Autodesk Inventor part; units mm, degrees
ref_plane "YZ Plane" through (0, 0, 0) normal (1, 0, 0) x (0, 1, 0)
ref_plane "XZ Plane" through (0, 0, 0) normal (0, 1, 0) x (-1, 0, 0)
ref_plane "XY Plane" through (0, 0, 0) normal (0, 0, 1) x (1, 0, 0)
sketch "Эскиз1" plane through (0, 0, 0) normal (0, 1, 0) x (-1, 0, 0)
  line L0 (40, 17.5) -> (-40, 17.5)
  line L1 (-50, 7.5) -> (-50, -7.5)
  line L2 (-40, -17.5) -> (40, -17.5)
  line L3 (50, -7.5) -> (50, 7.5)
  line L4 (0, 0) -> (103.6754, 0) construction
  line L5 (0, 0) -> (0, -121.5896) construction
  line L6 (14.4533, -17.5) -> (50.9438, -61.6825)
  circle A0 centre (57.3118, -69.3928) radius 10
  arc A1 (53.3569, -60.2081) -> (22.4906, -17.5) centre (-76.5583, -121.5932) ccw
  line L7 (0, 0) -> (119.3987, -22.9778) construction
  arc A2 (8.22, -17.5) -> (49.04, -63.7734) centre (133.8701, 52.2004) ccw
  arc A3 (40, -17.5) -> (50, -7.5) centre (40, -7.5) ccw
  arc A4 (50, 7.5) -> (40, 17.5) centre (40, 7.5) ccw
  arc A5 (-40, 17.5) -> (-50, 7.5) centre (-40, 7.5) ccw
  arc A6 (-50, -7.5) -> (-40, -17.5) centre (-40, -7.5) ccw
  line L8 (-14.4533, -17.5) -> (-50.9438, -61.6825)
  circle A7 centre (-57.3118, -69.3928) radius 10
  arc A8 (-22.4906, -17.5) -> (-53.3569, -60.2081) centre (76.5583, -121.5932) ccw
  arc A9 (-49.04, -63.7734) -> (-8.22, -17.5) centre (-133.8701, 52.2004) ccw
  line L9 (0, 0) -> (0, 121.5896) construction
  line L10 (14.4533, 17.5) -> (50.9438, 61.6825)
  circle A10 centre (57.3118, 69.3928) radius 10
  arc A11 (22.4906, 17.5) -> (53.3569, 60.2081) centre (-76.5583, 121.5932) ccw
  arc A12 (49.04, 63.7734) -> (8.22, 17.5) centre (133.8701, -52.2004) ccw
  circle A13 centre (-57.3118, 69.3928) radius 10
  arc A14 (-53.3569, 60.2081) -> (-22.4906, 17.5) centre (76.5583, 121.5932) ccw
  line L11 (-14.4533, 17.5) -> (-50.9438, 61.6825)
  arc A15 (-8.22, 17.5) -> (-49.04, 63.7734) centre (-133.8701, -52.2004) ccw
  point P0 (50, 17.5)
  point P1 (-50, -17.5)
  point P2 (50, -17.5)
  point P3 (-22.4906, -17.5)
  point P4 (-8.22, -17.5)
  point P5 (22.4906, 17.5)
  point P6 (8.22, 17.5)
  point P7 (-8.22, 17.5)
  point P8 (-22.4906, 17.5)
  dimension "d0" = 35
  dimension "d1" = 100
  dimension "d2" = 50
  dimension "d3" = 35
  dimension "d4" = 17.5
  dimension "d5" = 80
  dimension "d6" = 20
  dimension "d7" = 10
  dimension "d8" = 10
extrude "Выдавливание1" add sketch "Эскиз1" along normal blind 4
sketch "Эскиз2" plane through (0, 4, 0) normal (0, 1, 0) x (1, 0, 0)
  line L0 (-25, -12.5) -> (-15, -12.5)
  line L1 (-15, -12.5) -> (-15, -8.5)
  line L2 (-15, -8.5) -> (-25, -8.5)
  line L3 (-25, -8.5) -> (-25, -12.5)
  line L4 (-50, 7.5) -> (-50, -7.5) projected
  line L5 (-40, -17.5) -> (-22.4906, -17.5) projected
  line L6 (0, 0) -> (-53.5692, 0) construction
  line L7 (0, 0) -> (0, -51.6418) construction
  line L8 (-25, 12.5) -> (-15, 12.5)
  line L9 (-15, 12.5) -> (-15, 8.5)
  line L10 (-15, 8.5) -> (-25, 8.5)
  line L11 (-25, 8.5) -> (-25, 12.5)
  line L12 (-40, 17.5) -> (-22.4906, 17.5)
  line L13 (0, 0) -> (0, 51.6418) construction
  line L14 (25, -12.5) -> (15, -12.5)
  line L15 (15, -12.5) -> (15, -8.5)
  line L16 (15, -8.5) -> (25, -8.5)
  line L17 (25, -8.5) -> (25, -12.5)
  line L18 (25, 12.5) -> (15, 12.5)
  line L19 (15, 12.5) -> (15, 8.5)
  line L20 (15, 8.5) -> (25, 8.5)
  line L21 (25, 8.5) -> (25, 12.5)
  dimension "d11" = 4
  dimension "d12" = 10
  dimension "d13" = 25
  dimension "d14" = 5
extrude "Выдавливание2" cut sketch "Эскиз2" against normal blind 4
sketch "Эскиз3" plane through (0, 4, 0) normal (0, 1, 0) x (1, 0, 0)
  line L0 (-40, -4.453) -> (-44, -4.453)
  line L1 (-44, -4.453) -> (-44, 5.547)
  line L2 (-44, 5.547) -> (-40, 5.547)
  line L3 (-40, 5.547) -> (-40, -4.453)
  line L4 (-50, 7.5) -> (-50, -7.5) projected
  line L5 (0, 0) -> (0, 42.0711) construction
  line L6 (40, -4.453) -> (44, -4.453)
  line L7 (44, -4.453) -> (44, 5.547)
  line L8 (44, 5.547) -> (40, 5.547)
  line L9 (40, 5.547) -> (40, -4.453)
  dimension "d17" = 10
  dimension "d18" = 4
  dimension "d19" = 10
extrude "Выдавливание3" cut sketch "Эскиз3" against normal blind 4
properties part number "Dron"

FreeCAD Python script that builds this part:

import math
import FreeCAD as App
import Part
import Sketcher


def add_polygon(sketch, points):
    """Adds a closed chain of lines whose ends are joined by coincident constraints."""
    first, n = sketch.GeometryCount, len(points)
    for a, b in zip(points, points[1:] + points[:1]):
        sketch.addGeometry(Part.LineSegment(App.Vector(*a, 0), App.Vector(*b, 0)), False)
    for i in range(n):
        sketch.addConstraint(Sketcher.Constraint("Coincident", first + i, 2, first + (i + 1) % n, 1))

doc = App.newDocument("Part")
body = doc.addObject("PartDesign::Body", "Body")

sketch1 = body.newObject("Sketcher::SketchObject", "Sketch")
sketch1.AttachmentSupport = (doc.getObject("XZ_Plane"), [""])
sketch1.MapMode = "FlatFace"
sketch1.addGeometry([
    Part.ArcOfCircle(Part.Circle(App.Vector(-40, 8, 0), App.Vector(0, 0, 1), 10), math.radians(90), math.radians(180)),
    Part.LineSegment(App.Vector(-40, 18, 0), App.Vector(-22, 18, 0)),
    Part.ArcOfCircle(Part.Circle(App.Vector(77, 122, 0), App.Vector(0, 0, 1), 144), math.radians(-155), math.radians(-134)),
    Part.ArcOfCircle(Part.Circle(App.Vector(-57, 69, 0), App.Vector(0, 0, 1), 10), math.radians(-34), math.radians(293)),
    Part.ArcOfCircle(Part.Circle(App.Vector(-134, -52, 0), App.Vector(0, 0, 1), 144), math.radians(29), math.radians(54)),
    Part.LineSegment(App.Vector(-8, 18, 0), App.Vector(8, 18, 0)),
    Part.ArcOfCircle(Part.Circle(App.Vector(134, -52, 0), App.Vector(0, 0, 1), 144), math.radians(126), math.radians(151)),
    Part.ArcOfCircle(Part.Circle(App.Vector(57, 69, 0), App.Vector(0, 0, 1), 10), math.radians(-113), math.radians(214)),
    Part.ArcOfCircle(Part.Circle(App.Vector(-77, 122, 0), App.Vector(0, 0, 1), 144), math.radians(-46), math.radians(-25)),
    Part.LineSegment(App.Vector(22, 18, 0), App.Vector(40, 18, 0)),
    Part.ArcOfCircle(Part.Circle(App.Vector(40, 8, 0), App.Vector(0, 0, 1), 10), math.radians(0), math.radians(90)),
    Part.LineSegment(App.Vector(50, 8, 0), App.Vector(50, -8, 0)),
    Part.ArcOfCircle(Part.Circle(App.Vector(40, -8, 0), App.Vector(0, 0, 1), 10), math.radians(-90), math.radians(0)),
    Part.LineSegment(App.Vector(40, -18, 0), App.Vector(22, -18, 0)),
    Part.ArcOfCircle(Part.Circle(App.Vector(-77, -122, 0), App.Vector(0, 0, 1), 144), math.radians(25), math.radians(46)),
    Part.ArcOfCircle(Part.Circle(App.Vector(57, -69, 0), App.Vector(0, 0, 1), 10), math.radians(146), math.radians(473)),
    Part.ArcOfCircle(Part.Circle(App.Vector(134, 52, 0), App.Vector(0, 0, 1), 144), math.radians(-151), math.radians(-126)),
    Part.LineSegment(App.Vector(8, -18, 0), App.Vector(-8, -18, 0)),
    Part.ArcOfCircle(Part.Circle(App.Vector(-134, 52, 0), App.Vector(0, 0, 1), 144), math.radians(-54), math.radians(-29)),
    Part.ArcOfCircle(Part.Circle(App.Vector(-57, -69, 0), App.Vector(0, 0, 1), 10), math.radians(67), math.radians(394)),
    Part.ArcOfCircle(Part.Circle(App.Vector(77, -122, 0), App.Vector(0, 0, 1), 144), math.radians(134), math.radians(155)),
    Part.LineSegment(App.Vector(-22, -18, 0), App.Vector(-40, -18, 0)),
    Part.ArcOfCircle(Part.Circle(App.Vector(-40, -8, 0), App.Vector(0, 0, 1), 10), math.radians(180), math.radians(270)),
    Part.LineSegment(App.Vector(-50, -8, 0), App.Vector(-50, 8, 0)),
], False)
sketch1.addConstraint([
    Sketcher.Constraint("Tangent", 0, 1, 1, 1),
    Sketcher.Constraint("Coincident", 1, 2, 2, 2),
    Sketcher.Constraint("Coincident", 2, 1, 3, 2),
    Sketcher.Constraint("Coincident", 3, 1, 4, 2),
    Sketcher.Constraint("Coincident", 4, 1, 5, 1),
    Sketcher.Constraint("Coincident", 5, 2, 6, 2),
    Sketcher.Constraint("Coincident", 6, 1, 7, 2),
    Sketcher.Constraint("Coincident", 7, 1, 8, 2),
    Sketcher.Constraint("Coincident", 8, 1, 9, 1),
    Sketcher.Constraint("Tangent", 9, 2, 10, 2),
    Sketcher.Constraint("Tangent", 10, 1, 11, 1),
    Sketcher.Constraint("Tangent", 11, 2, 12, 2),
    Sketcher.Constraint("Tangent", 12, 1, 13, 1),
    Sketcher.Constraint("Coincident", 13, 2, 14, 2),
    Sketcher.Constraint("Coincident", 14, 1, 15, 2),
    Sketcher.Constraint("Coincident", 15, 1, 16, 2),
    Sketcher.Constraint("Coincident", 16, 1, 17, 1),
    Sketcher.Constraint("Coincident", 17, 2, 18, 2),
    Sketcher.Constraint("Coincident", 18, 1, 19, 2),
    Sketcher.Constraint("Coincident", 19, 1, 20, 2),
    Sketcher.Constraint("Coincident", 20, 1, 21, 1),
    Sketcher.Constraint("Tangent", 21, 2, 22, 2),
    Sketcher.Constraint("Tangent", 22, 1, 23, 1),
    Sketcher.Constraint("Tangent", 23, 2, 0, 2),
    Sketcher.Constraint("Horizontal", 1),
    Sketcher.Constraint("Horizontal", 5),
    Sketcher.Constraint("Horizontal", 9),
    Sketcher.Constraint("Vertical", 11),
    Sketcher.Constraint("Horizontal", 13),
    Sketcher.Constraint("Horizontal", 17),
    Sketcher.Constraint("Horizontal", 21),
    Sketcher.Constraint("Vertical", 23),
    Sketcher.Constraint("Equal", 0, 3),
    Sketcher.Constraint("Equal", 3, 7),
    Sketcher.Constraint("Equal", 7, 10),
    Sketcher.Constraint("Equal", 10, 12),
    Sketcher.Constraint("Equal", 2, 14),
    Sketcher.Constraint("Equal", 12, 15),
    Sketcher.Constraint("Equal", 4, 16),
    Sketcher.Constraint("Equal", 6, 18),
    Sketcher.Constraint("Equal", 15, 19),
    Sketcher.Constraint("Equal", 8, 20),
    Sketcher.Constraint("Equal", 19, 22),
    Sketcher.Constraint("Symmetric", 0, 3, 12, 3, -1, 1),
    Sketcher.Constraint("Symmetric", 2, 3, 14, 3, -1, 1),
    Sketcher.Constraint("Symmetric", 3, 3, 15, 3, -1, 1),
    Sketcher.Constraint("Symmetric", 4, 3, 16, 3, -1, 1),
    Sketcher.Constraint("Symmetric", 6, 3, 18, 3, -1, 1),
    Sketcher.Constraint("Symmetric", 7, 3, 19, 3, -1, 1),
    Sketcher.Constraint("Symmetric", 8, 3, 20, 3, -1, 1),
    Sketcher.Constraint("Symmetric", 3, 3, 7, 3, -2),
    Sketcher.Constraint("Symmetric", 1, 2, 8, 1, -2),
    Sketcher.Constraint("Symmetric", 5, 2, 16, 1, -1),
    Sketcher.Constraint("Horizontal", 12, 3, 22, 3),
    Sketcher.Constraint("Horizontal", 1, 2, 4, 1),
    Sketcher.Constraint("Horizontal", 3, 1, 6, 1),
    Sketcher.Constraint("Vertical", 7, 1, 14, 1),
    Sketcher.Constraint("Radius", 0, 10.0),
    Sketcher.Constraint("DistanceX", -1, 1, 10, 1, 50.0),
    Sketcher.Constraint("DistanceY", 12, 1, 9, 2, 35.0),
    Sketcher.Constraint("DistanceX", 5, 1, 5, 2, 16.44),
    Sketcher.Constraint("Radius", 2, 143.6885),
    Sketcher.Constraint("Radius", 4, 143.6893),
    Sketcher.Constraint("Radius", 6, 143.6856),
    Sketcher.Constraint("Radius", 8, 143.6864),
    Sketcher.Constraint("DistanceX", 3, 1, -1, 1, 49.04),
    Sketcher.Constraint("DistanceX", 4, 3, 6, 3, 267.74),
    Sketcher.Constraint("DistanceX", 1, 1, 1, 2, 17.5094),
    Sketcher.Constraint("DistanceY", -1, 1, 2, 3, 121.594),
    Sketcher.Constraint("DistanceX", -1, 1, 7, 1, 53.357),
])
pad1 = body.newObject("PartDesign::Pad", "Pad")
pad1.Profile = sketch1
pad1.Length = 4
pad1.Reversed = True

sketch2 = body.newObject("Sketcher::SketchObject", "Sketch001")
sketch2.AttachmentSupport = (doc.getObject("XZ_Plane"), [""])
sketch2.MapMode = "FlatFace"
sketch2.AttachmentOffset = App.Placement(App.Vector(0, 0, -4), App.Rotation())
add_polygon(sketch2, [(-25, 8.5), (-25, 12.5), (-15, 12.5), (-15, 8.5)])
add_polygon(sketch2, [(-15, -12.5), (-25, -12.5), (-25, -8.5), (-15, -8.5)])
add_polygon(sketch2, [(15, 12.5), (25, 12.5), (25, 8.5), (15, 8.5)])
add_polygon(sketch2, [(25, -8.5), (25, -12.5), (15, -12.5), (15, -8.5)])
sketch2.addConstraint([
    Sketcher.Constraint("Vertical", 0),
    Sketcher.Constraint("Horizontal", 1),
    Sketcher.Constraint("Vertical", 2),
    Sketcher.Constraint("Horizontal", 3),
    Sketcher.Constraint("Horizontal", 4),
    Sketcher.Constraint("Vertical", 5),
    Sketcher.Constraint("Horizontal", 6),
    Sketcher.Constraint("Vertical", 7),
    Sketcher.Constraint("Horizontal", 8),
    Sketcher.Constraint("Vertical", 9),
    Sketcher.Constraint("Horizontal", 10),
    Sketcher.Constraint("Vertical", 11),
    Sketcher.Constraint("Vertical", 12),
    Sketcher.Constraint("Horizontal", 13),
    Sketcher.Constraint("Vertical", 14),
    Sketcher.Constraint("Horizontal", 15),
    Sketcher.Constraint("Symmetric", 4, 2, 8, 2, -1, 1),
    Sketcher.Constraint("Symmetric", 6, 2, 10, 2, -1, 1),
    Sketcher.Constraint("Symmetric", 0, 2, 12, 2, -1, 1),
    Sketcher.Constraint("Symmetric", 2, 2, 14, 2, -1, 1),
    Sketcher.Constraint("Symmetric", 0, 2, 8, 2, -2),
    Sketcher.Constraint("Symmetric", 2, 2, 10, 2, -2),
    Sketcher.Constraint("DistanceX", 1, 1, 1, 2, 10.0),
    Sketcher.Constraint("DistanceY", 0, 1, 0, 2, 4.0),
    Sketcher.Constraint("DistanceX", 0, 2, -1, 1, 25.0),
    Sketcher.Constraint("DistanceY", 4, 2, 0, 2, 25.0),
])
pocket1 = body.newObject("PartDesign::Pocket", "Pocket")
pocket1.Profile = sketch2
pocket1.Length = 4
pocket1.Reversed = True

sketch3 = body.newObject("Sketcher::SketchObject", "Sketch002")
sketch3.AttachmentSupport = (doc.getObject("XZ_Plane"), [""])
sketch3.MapMode = "FlatFace"
sketch3.AttachmentOffset = App.Placement(App.Vector(0, 0, -4), App.Rotation())
add_polygon(sketch3, [(-44, 4.5), (-40, 4.5), (-40, -5.5), (-44, -5.5)])
add_polygon(sketch3, [(40, -5.5), (40, 4.5), (44, 4.5), (44, -5.5)])
sketch3.addConstraint([
    Sketcher.Constraint("Horizontal", 0),
    Sketcher.Constraint("Vertical", 1),
    Sketcher.Constraint("Horizontal", 2),
    Sketcher.Constraint("Vertical", 3),
    Sketcher.Constraint("Vertical", 4),
    Sketcher.Constraint("Horizontal", 5),
    Sketcher.Constraint("Vertical", 6),
    Sketcher.Constraint("Horizontal", 7),
    Sketcher.Constraint("Symmetric", 0, 2, 4, 2, -2),
    Sketcher.Constraint("Symmetric", 2, 2, 6, 2, -2),
    Sketcher.Constraint("DistanceX", 0, 1, 0, 2, 4.0),
    Sketcher.Constraint("DistanceY", 1, 2, 1, 1, 10.0),
    Sketcher.Constraint("DistanceX", 0, 2, -1, 1, 40.0),
    Sketcher.Constraint("DistanceY", -1, 1, 0, 2, 4.453),
])
pocket2 = body.newObject("PartDesign::Pocket", "Pocket001")
pocket2.Profile = sketch3
pocket2.Length = 4
pocket2.Reversed = True

doc.recompute()
